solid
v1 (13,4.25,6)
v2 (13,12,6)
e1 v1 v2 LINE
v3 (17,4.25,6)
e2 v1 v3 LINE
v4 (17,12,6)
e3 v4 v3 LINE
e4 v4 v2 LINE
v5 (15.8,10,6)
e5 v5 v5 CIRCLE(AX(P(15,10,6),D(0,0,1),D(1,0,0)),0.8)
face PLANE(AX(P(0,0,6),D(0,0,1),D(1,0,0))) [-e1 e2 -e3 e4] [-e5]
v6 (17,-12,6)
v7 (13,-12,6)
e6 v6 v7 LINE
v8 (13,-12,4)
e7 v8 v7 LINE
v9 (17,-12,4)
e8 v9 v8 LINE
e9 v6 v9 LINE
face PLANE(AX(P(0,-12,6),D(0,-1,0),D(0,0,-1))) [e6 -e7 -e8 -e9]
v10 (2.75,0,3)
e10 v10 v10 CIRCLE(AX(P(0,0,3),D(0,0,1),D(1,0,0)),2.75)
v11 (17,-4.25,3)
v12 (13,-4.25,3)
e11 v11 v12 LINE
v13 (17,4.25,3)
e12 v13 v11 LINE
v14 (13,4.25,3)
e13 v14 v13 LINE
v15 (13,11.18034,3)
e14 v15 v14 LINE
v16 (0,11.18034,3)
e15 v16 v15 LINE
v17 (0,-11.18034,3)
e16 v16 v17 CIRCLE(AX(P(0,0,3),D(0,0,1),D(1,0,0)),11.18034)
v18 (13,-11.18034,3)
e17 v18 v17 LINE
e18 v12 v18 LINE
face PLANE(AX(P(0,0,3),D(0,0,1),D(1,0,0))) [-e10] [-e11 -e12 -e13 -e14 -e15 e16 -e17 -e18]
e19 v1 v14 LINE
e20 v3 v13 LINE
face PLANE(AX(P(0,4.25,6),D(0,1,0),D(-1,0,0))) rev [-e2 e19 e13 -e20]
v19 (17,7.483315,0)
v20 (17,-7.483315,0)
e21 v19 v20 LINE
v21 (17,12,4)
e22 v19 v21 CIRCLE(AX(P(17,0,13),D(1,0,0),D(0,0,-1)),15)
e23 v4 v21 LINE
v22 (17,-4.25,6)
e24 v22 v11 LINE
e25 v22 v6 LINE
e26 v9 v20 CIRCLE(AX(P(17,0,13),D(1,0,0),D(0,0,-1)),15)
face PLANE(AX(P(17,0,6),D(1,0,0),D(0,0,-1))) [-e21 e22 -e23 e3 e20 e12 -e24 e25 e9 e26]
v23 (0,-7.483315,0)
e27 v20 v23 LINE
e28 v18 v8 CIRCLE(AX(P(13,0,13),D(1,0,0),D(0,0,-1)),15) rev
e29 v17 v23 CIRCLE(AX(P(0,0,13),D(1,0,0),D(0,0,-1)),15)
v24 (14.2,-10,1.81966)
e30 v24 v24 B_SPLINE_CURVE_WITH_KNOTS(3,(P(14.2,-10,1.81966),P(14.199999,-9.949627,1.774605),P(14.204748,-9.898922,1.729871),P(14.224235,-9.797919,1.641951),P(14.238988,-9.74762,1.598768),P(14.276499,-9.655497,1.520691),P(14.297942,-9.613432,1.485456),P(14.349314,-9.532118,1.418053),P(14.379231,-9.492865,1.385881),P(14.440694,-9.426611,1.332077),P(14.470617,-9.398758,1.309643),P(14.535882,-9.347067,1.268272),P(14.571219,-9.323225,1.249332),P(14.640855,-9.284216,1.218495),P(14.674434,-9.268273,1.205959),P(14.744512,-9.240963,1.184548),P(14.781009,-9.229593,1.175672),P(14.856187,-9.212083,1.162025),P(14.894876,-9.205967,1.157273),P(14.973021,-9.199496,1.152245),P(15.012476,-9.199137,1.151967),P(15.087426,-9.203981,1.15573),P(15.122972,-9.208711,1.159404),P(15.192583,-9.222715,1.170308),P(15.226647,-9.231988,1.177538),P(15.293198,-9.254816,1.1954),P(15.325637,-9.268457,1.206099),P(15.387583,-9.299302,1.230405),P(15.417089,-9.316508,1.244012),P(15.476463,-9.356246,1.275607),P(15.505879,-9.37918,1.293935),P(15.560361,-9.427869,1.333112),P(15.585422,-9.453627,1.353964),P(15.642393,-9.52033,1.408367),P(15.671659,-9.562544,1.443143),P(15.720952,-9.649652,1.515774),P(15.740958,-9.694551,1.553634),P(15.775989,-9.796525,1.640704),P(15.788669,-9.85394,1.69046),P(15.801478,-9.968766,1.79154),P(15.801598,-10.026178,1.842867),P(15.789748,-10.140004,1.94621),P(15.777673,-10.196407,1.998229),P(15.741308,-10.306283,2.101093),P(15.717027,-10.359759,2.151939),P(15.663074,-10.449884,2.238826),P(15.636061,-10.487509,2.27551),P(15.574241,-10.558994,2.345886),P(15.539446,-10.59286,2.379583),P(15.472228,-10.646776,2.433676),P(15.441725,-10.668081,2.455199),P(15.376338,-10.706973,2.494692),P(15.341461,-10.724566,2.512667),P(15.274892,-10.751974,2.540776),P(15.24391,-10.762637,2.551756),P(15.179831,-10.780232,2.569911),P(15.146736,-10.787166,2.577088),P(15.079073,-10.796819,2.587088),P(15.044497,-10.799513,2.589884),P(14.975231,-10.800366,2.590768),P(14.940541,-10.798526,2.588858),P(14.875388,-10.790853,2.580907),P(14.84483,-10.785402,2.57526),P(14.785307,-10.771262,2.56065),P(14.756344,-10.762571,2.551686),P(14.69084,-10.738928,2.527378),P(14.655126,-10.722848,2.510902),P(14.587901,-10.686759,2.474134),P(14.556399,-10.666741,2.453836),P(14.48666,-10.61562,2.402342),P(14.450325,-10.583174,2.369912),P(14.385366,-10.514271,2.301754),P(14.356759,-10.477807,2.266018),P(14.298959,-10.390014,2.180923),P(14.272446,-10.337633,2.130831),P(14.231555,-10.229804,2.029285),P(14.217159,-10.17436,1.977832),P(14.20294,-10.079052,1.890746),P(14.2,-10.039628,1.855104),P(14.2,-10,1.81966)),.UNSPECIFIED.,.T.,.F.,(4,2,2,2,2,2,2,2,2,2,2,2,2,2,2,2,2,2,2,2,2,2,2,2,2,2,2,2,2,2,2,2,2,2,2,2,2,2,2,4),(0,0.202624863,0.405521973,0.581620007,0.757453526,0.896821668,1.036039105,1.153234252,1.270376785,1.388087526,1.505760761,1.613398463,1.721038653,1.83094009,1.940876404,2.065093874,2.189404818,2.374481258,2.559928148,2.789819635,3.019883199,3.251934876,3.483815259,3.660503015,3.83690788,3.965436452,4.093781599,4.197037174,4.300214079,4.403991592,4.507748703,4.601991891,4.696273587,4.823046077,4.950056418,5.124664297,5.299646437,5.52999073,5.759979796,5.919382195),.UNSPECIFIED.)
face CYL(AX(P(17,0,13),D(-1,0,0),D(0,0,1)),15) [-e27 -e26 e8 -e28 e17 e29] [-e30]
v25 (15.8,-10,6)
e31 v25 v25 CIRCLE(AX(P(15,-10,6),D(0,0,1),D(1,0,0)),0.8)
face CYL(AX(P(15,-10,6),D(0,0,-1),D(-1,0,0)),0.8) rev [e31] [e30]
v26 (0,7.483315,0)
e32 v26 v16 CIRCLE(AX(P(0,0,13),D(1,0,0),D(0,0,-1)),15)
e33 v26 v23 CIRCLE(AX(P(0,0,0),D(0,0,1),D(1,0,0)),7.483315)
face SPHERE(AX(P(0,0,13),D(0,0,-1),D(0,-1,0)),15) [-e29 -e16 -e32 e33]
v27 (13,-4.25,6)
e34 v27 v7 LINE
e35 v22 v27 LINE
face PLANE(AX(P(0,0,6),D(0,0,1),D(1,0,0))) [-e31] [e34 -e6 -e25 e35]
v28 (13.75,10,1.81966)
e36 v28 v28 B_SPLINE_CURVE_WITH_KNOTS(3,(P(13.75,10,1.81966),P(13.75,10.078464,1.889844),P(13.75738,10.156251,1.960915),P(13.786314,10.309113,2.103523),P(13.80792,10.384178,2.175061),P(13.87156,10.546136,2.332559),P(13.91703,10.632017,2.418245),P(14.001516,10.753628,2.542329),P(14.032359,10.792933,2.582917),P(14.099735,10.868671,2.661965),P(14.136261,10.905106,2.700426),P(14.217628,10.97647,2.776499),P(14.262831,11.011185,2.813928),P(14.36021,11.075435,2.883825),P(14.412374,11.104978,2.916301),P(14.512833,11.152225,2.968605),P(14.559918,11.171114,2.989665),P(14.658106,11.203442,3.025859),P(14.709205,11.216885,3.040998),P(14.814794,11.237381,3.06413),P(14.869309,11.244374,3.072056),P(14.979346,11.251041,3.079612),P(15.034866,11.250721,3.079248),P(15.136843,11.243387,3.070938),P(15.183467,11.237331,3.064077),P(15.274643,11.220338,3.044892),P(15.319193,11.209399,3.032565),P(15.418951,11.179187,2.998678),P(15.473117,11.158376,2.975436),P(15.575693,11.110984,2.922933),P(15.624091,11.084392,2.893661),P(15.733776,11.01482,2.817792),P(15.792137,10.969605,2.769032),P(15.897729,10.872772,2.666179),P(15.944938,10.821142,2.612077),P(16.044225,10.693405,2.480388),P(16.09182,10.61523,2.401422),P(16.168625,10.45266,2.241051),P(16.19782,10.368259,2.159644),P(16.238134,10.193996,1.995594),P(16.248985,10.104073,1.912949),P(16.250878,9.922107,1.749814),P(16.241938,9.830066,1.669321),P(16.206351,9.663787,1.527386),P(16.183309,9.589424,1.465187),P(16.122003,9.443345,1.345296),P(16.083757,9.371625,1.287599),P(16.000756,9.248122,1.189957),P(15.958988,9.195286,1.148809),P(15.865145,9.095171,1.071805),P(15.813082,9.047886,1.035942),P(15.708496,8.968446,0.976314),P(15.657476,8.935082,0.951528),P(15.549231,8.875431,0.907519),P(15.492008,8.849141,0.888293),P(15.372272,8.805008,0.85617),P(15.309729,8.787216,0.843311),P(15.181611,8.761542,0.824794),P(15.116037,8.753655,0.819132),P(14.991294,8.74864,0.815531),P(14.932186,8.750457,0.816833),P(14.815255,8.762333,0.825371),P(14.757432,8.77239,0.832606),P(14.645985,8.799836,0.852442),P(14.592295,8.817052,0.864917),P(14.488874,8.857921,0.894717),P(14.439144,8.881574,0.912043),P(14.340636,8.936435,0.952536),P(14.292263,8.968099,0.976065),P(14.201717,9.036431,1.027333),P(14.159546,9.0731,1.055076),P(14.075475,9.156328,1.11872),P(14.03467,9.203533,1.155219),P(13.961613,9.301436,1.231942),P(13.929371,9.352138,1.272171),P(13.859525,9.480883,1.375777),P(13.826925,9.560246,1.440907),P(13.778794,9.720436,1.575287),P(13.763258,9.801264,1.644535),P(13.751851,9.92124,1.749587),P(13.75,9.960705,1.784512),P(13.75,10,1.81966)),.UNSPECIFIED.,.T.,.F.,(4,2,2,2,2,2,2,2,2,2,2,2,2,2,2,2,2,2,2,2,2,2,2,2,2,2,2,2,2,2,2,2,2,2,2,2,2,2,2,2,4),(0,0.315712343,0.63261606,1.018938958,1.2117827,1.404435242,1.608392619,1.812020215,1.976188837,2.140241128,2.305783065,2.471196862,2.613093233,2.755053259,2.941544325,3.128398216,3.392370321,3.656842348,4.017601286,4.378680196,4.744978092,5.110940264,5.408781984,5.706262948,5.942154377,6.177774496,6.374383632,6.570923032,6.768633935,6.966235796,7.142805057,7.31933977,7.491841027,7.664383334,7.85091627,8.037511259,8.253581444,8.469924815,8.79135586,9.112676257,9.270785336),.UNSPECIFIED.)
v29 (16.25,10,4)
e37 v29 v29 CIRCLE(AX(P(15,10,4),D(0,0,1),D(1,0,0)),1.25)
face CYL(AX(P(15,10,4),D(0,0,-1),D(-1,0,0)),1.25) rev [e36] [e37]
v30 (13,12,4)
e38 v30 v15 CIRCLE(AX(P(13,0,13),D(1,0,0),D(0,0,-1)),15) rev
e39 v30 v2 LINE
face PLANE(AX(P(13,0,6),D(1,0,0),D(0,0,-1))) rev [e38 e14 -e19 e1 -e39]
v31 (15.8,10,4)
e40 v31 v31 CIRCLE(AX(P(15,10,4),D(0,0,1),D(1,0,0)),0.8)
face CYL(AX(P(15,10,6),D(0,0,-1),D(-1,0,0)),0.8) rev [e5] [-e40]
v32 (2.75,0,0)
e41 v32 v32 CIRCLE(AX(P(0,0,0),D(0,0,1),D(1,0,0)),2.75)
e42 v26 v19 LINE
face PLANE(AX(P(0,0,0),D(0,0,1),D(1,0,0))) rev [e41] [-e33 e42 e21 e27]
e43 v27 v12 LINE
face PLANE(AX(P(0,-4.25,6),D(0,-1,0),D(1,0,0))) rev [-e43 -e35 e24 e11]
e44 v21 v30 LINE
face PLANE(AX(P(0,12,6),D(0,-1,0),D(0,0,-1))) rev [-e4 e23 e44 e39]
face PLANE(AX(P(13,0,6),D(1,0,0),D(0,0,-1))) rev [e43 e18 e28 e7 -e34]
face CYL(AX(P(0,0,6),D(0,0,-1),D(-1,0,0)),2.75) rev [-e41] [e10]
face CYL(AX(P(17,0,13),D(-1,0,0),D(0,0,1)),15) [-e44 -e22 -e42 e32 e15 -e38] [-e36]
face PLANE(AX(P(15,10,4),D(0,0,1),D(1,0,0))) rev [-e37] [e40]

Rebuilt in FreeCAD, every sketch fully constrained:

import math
import FreeCAD as App
import Part
import Sketcher

V = App.Vector

doc = App.newDocument("Part")
body = doc.addObject("PartDesign::Body", "Body")

sketch1 = doc.addObject("Sketcher::SketchObject", "Sketch")
body.addObject(sketch1)
sketch1.AttachmentSupport = (doc.XY_Plane, [""])
sketch1.MapMode = "FlatFace"
sketch1.addGeometry([
    Part.LineSegment(V(17, -12, 0), V(17, 12, 0)),
    Part.LineSegment(V(17, 12, 0), V(5, 12, 0)),
    Part.ArcOfCircle(Part.Circle(V(0, 0, 0), V(0, 0, 1), 13), math.radians(67), math.radians(293)),
    Part.LineSegment(V(5, -12, 0), V(17, -12, 0)),
    Part.Circle(V(0, 0, 0), V(0, 0, 1), 2.8),
], False)
sketch1.addConstraint([
    Sketcher.Constraint("Coincident", 0, 2, 1, 1),
    Sketcher.Constraint("Coincident", 1, 2, 2, 1),
    Sketcher.Constraint("Coincident", 2, 2, 3, 1),
    Sketcher.Constraint("Coincident", 3, 2, 0, 1),
    Sketcher.Constraint("Vertical", 0),
    Sketcher.Constraint("Horizontal", 1),
    Sketcher.Constraint("Horizontal", 3),
    Sketcher.Constraint("Coincident", 2, 3, -1, 1),
    Sketcher.Constraint("Coincident", 4, 3, -1, 1),
    Sketcher.Constraint("Vertical", 1, 2, 2, 2),
    Sketcher.Constraint("Radius", 2, 13.0),
    Sketcher.Constraint("Diameter", 4, 5.5),
    Sketcher.Constraint("DistanceX", 1, 2, 1, 1, 12.0),
    Sketcher.Constraint("DistanceY", 0, 1, 0, 2, 24.0),
])
pad1 = doc.addObject("PartDesign::Pad", "Pad")
body.addObject(pad1)
pad1.Profile = sketch1
pad1.Length = 6

sketch2 = doc.addObject("Sketcher::SketchObject", "Sketch001")
body.addObject(sketch2)
sketch2.AttachmentSupport = (doc.XY_Plane, [""])
sketch2.MapMode = "FlatFace"
sketch2.AttachmentOffset = App.Placement(V(0, 0, 3), App.Rotation())
sketch2.addGeometry([
    Part.ArcOfCircle(Part.Circle(V(0, 0, 0), V(0, 0, 1), 13), math.radians(67), math.radians(293)),
    Part.LineSegment(V(5, -12, 0), V(13, -12, 0)),
    Part.LineSegment(V(13, -12, 0), V(13, -4.2, 0)),
    Part.LineSegment(V(13, -4.2, 0), V(17, -4.2, 0)),
    Part.LineSegment(V(17, -4.2, 0), V(17, 4.2, 0)),
    Part.LineSegment(V(17, 4.2, 0), V(13, 4.2, 0)),
    Part.LineSegment(V(13, 4.2, 0), V(13, 12, 0)),
    Part.LineSegment(V(13, 12, 0), V(5, 12, 0)),
    Part.Circle(V(0, 0, 0), V(0, 0, 1), 2.8),
], False)
sketch2.addConstraint([
    Sketcher.Constraint("Coincident", 0, 2, 1, 1),
    Sketcher.Constraint("Coincident", 1, 2, 2, 1),
    Sketcher.Constraint("Coincident", 2, 2, 3, 1),
    Sketcher.Constraint("Coincident", 3, 2, 4, 1),
    Sketcher.Constraint("Coincident", 4, 2, 5, 1),
    Sketcher.Constraint("Coincident", 5, 2, 6, 1),
    Sketcher.Constraint("Coincident", 6, 2, 7, 1),
    Sketcher.Constraint("Coincident", 7, 2, 0, 1),
    Sketcher.Constraint("Horizontal", 1),
    Sketcher.Constraint("Vertical", 2),
    Sketcher.Constraint("Horizontal", 3),
    Sketcher.Constraint("Vertical", 4),
    Sketcher.Constraint("Horizontal", 5),
    Sketcher.Constraint("Vertical", 6),
    Sketcher.Constraint("Horizontal", 7),
    Sketcher.Constraint("Coincident", 0, 3, -1, 1),
    Sketcher.Constraint("Coincident", 8, 3, -1, 1),
    Sketcher.Constraint("Symmetric", 2, 2, 5, 2, -1),
    Sketcher.Constraint("Vertical", 0, 2, 7, 2),
    Sketcher.Constraint("Radius", 0, 13.0),
    Sketcher.Constraint("Diameter", 8, 5.5),
    Sketcher.Constraint("DistanceX", 1, 1, 1, 2, 8.0),
    Sketcher.Constraint("DistanceX", 3, 1, 3, 2, 4.0),
    Sketcher.Constraint("DistanceY", 4, 1, 4, 2, 8.5),
    Sketcher.Constraint("DistanceX", -1, 1, 0, 2, 5.0),
])
pocket1 = doc.addObject("PartDesign::Pocket", "Pocket")
body.addObject(pocket1)
pocket1.Profile = sketch2
pocket1.Length = 3
pocket1.Reversed = True

sketch3 = doc.addObject("Sketcher::SketchObject", "Sketch002")
body.addObject(sketch3)
sketch3.AttachmentSupport = (doc.YZ_Plane, [""])
sketch3.MapMode = "FlatFace"
sketch3.addGeometry([
    Part.LineSegment(V(15, -2, 0), V(15, 13, 0)),
    Part.ArcOfCircle(Part.Circle(V(0, 13, 0), V(0, 0, 1), 15), math.radians(-90), math.radians(0)),
    Part.LineSegment(V(0, -2, 0), V(15, -2, 0)),
    Part.LineSegment(V(-15, -2, 0), V(0, -2, 0)),
    Part.ArcOfCircle(Part.Circle(V(0, 13, 0), V(0, 0, 1), 15), math.radians(180), math.radians(270)),
    Part.LineSegment(V(-15, 13, 0), V(-15, -2, 0)),
], False)
sketch3.addConstraint([
    Sketcher.Constraint("Tangent", 0, 2, 1, 2),
    Sketcher.Constraint("Tangent", 1, 1, 2, 1),
    Sketcher.Constraint("Coincident", 2, 2, 0, 1),
    Sketcher.Constraint("Tangent", 3, 2, 4, 2),
    Sketcher.Constraint("Tangent", 4, 1, 5, 1),
    Sketcher.Constraint("Coincident", 5, 2, 3, 1),
    Sketcher.Constraint("Vertical", 0),
    Sketcher.Constraint("Horizontal", 2),
    Sketcher.Constraint("Horizontal", 3),
    Sketcher.Constraint("Vertical", 5),
    Sketcher.Constraint("Coincident", 4, 3, 1, 3),
    Sketcher.Constraint("Equal", 1, 4),
    Sketcher.Constraint("PointOnObject", 1, 3, -2),
    Sketcher.Constraint("Radius", 1, 15.0),
    Sketcher.Constraint("DistanceY", -1, 1, 1, 3, 13.0),
])
pocket2 = doc.addObject("PartDesign::Pocket", "Pocket001")
body.addObject(pocket2)
pocket2.Profile = sketch3
pocket2.Type = "ThroughAll"
pocket2.Reversed = True

sketch4 = doc.addObject("Sketcher::SketchObject", "Sketch003")
body.addObject(sketch4)
sketch4.AttachmentSupport = (doc.YZ_Plane, [""])
sketch4.MapMode = "FlatFace"
sketch4.addGeometry([
    Part.ArcOfCircle(Part.Circle(V(0, 13, 0), V(0, 0, 1), 15), math.radians(-69), math.radians(0)),
    Part.LineSegment(V(5.4, -1, 0), V(5.4, -2, 0)),
    Part.LineSegment(V(5.4, -2, 0), V(15, -2, 0)),
    Part.LineSegment(V(15, -2, 0), V(15, 13, 0)),
], False)
sketch4.addConstraint([
    Sketcher.Constraint("Coincident", 0, 1, 1, 1),
    Sketcher.Constraint("Coincident", 1, 2, 2, 1),
    Sketcher.Constraint("Coincident", 2, 2, 3, 1),
    Sketcher.Constraint("Tangent", 3, 2, 0, 2),
    Sketcher.Constraint("Vertical", 1),
    Sketcher.Constraint("Horizontal", 2),
    Sketcher.Constraint("Vertical", 3),
    Sketcher.Constraint("PointOnObject", 0, 3, -2),
    Sketcher.Constraint("Radius", 0, 15.0),
    Sketcher.Constraint("DistanceY", 1, 2, 1, 1, 1.0),
    Sketcher.Constraint("DistanceY", 3, 1, 3, 2, 15.0),
    Sketcher.Constraint("DistanceY", -1, 1, 0, 3, 13.0),
])
groove = doc.addObject("PartDesign::Groove", "Groove")
body.addObject(groove)
groove.Profile = sketch4
groove.ReferenceAxis = (sketch4, ["V_Axis"])
groove.Angle = 180

sketch5 = doc.addObject("Sketcher::SketchObject", "Sketch004")
body.addObject(sketch5)
sketch5.AttachmentSupport = (doc.XY_Plane, [""])
sketch5.MapMode = "FlatFace"
sketch5.addGeometry([
    Part.Circle(V(15, 10, 0), V(0, 0, 1), 0.8),
    Part.Circle(V(15, -10, 0), V(0, 0, 1), 0.8),
], False)
sketch5.addConstraint([
    Sketcher.Constraint("Equal", 0, 1),
    Sketcher.Constraint("Symmetric", 0, 3, 1, 3, -1),
    Sketcher.Constraint("Diameter", 0, 1.6),
    Sketcher.Constraint("DistanceX", -1, 1, 0, 3, 15.0),
    Sketcher.Constraint("DistanceY", -1, 1, 0, 3, 10.0),
])
pocket3 = doc.addObject("PartDesign::Pocket", "Pocket002")
body.addObject(pocket3)
pocket3.Profile = sketch5
pocket3.Type = "ThroughAll"
pocket3.Reversed = True

sketch6 = doc.addObject("Sketcher::SketchObject", "Sketch005")
body.addObject(sketch6)
sketch6.AttachmentSupport = (doc.XY_Plane, [""])
sketch6.MapMode = "FlatFace"
sketch6.addGeometry(Part.Circle(V(15, 10, 0), V(0, 0, 1), 1.2), False)
sketch6.addConstraint([
    Sketcher.Constraint("Diameter", 0, 2.5),
    Sketcher.Constraint("DistanceX", -1, 1, 0, 3, 15.0),
    Sketcher.Constraint("DistanceY", -1, 1, 0, 3, 10.0),
])
pocket4 = doc.addObject("PartDesign::Pocket", "Pocket003")
body.addObject(pocket4)
pocket4.Profile = sketch6
pocket4.Length = 4
pocket4.Reversed = True

doc.recompute()
